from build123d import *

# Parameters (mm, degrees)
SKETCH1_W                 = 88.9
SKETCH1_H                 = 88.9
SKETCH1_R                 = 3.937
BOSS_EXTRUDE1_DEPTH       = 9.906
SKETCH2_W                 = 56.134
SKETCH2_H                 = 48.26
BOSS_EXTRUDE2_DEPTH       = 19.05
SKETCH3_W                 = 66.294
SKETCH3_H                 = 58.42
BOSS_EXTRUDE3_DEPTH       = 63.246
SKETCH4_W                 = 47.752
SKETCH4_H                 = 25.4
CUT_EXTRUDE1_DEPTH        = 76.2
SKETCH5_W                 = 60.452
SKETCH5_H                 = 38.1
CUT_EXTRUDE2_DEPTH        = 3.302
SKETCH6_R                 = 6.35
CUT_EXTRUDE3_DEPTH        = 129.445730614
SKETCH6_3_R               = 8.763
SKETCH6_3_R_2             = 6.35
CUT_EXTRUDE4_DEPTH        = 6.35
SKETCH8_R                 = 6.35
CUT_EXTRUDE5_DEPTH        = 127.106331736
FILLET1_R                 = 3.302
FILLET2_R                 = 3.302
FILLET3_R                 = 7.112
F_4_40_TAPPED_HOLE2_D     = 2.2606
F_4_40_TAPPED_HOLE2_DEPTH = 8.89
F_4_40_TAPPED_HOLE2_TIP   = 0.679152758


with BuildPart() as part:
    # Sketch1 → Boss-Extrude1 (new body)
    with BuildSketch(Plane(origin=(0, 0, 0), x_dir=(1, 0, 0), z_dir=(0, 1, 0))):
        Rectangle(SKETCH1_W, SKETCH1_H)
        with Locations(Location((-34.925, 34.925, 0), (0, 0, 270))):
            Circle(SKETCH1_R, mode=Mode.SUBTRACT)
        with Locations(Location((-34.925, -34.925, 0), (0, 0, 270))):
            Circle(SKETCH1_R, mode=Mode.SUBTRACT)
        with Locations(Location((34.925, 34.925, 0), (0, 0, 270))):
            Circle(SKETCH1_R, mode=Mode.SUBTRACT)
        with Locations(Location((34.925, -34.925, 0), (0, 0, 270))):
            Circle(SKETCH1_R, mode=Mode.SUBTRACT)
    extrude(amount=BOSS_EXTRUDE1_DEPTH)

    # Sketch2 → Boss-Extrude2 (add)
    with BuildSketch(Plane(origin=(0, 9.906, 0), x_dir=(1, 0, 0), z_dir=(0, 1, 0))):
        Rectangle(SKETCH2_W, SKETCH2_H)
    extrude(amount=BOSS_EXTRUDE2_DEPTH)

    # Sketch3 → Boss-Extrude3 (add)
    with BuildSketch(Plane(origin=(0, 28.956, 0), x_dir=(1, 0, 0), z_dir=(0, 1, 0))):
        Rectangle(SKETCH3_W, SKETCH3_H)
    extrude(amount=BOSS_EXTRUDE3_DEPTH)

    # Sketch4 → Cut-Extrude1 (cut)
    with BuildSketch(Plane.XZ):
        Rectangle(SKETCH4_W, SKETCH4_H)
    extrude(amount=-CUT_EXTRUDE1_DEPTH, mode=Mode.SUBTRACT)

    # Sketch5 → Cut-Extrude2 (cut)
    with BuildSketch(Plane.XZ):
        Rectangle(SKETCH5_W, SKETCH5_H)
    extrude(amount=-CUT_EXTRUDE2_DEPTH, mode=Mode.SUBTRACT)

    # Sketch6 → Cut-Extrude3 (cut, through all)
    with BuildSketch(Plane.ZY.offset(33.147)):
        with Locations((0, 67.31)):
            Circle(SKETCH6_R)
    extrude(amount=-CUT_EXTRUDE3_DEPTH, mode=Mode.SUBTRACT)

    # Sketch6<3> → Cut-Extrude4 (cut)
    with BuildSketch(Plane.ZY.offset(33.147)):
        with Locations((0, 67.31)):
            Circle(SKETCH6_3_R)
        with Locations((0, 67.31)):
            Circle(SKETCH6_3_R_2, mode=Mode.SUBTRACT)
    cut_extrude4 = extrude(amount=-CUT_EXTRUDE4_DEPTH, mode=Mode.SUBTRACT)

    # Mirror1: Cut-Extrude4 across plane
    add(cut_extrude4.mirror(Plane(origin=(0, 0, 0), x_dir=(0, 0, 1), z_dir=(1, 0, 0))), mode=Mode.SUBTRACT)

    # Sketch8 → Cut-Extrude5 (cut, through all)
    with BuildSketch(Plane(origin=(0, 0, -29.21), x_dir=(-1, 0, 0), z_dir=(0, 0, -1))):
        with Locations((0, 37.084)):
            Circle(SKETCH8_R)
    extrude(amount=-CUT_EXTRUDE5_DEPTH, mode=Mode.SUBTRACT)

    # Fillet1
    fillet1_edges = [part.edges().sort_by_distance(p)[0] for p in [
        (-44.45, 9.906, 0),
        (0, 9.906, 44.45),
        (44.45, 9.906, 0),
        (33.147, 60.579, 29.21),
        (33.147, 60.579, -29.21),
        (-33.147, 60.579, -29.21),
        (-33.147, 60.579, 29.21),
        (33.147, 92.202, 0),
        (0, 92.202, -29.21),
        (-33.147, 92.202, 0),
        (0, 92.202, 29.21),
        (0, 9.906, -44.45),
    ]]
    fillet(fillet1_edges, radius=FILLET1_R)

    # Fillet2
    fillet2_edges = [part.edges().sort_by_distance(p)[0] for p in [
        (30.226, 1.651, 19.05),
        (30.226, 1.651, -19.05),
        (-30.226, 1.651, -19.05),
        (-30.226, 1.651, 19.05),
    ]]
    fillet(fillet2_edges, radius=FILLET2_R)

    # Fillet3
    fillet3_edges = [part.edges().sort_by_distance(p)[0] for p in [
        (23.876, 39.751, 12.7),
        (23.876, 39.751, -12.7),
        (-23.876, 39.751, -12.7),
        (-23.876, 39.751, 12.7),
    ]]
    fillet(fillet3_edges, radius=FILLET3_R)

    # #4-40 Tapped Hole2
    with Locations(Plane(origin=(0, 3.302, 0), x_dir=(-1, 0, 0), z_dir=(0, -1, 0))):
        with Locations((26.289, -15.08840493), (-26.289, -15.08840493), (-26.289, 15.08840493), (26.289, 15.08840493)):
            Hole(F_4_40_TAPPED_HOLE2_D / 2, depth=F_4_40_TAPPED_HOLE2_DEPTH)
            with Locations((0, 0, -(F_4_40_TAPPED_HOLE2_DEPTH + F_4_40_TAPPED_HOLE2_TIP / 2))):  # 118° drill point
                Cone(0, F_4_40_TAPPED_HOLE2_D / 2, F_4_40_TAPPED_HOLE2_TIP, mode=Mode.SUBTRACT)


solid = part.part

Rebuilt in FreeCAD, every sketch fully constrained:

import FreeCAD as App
import Part
import Sketcher
Q = App.Units.Quantity


def edges_at(feature, points):
    """Names of the edges that pass closest to the given points."""
    edges = feature.Shape.Edges
    near = lambda p: min(range(len(edges)), key=lambda i: edges[i].distToShape(Part.Vertex(*p))[0])
    return sorted({f"Edge{near(p) + 1}" for p in points})


def add_polygon(sketch, points):
    """Adds a closed chain of lines whose ends are joined by coincident constraints."""
    first, n = sketch.GeometryCount, len(points)
    for a, b in zip(points, points[1:] + points[:1]):
        sketch.addGeometry(Part.LineSegment(App.Vector(*a, 0), App.Vector(*b, 0)), False)
    for i in range(n):
        sketch.addConstraint(Sketcher.Constraint("Coincident", first + i, 2, first + (i + 1) % n, 1))

doc = App.newDocument("Part")
params = doc.addObject("Spreadsheet::Sheet", "Params")
for row, (alias, value) in enumerate([
    ("sketch1_diameter", "0.31 in"),
    ("sketch1_width", "3.5 in"),
    ("pad1_length", "0.39 in"),
    ("sketch2_height", "1.9 in"),
    ("sketch2_width", "2.21 in"),
    ("pad2_length", "0.75 in"),
    ("sketch3_height", "2.3 in"),
    ("sketch3_width", "2.61 in"),
    ("pad3_length", "2.49 in"),
    ("sketch4_height", "1 in"),
    ("sketch4_width", "1.88 in"),
    ("pocket1_length", "3 in"),
    ("sketch5_height", "1.5 in"),
    ("sketch5_width", "2.38 in"),
    ("pocket2_length", "0.13 in"),
    ("sketch6_diameter", "0.5 in"),
    ("sketch7_diameter", "0.5 in"),
    ("sketch7_diameter2", "0.69 in"),
    ("pocket4_length", "0.25 in"),
    ("sketch8_diameter", "0.5 in"),
    ("fillet_radius", "0.13 in"),
    ("fillet2_radius", "0.13 in"),
    ("fillet3_radius", "0.28 in"),
    ("sketch9_diameter", "0.089 in"),
    ("hole_diameter", "0.089 in"),
    ("hole_depth", "0.35 in"),
], start=1):
    params.set(f"A{row}", alias)
    params.set(f"B{row}", "=" + value)
    params.setAlias(f"B{row}", alias)

body = doc.addObject("PartDesign::Body", "Body")

# Sketch on XZ plane
sketch1 = body.newObject("Sketcher::SketchObject", "Sketch")
sketch1.AttachmentSupport = (doc.getObject("XZ_Plane"), [""])
sketch1.MapMode = "FlatFace"
add_polygon(sketch1, [(-44.5, -44.5), (-44.5, 44.5), (44.5, 44.5), (44.5, -44.5)])  # lines 0-3
sketch1.addGeometry(Part.Circle(App.Vector(-34.9, 34.9, 0), App.Vector(0, 0, 1), 3.9), False)  # 4
sketch1.addGeometry(Part.Circle(App.Vector(34.9, 34.9, 0), App.Vector(0, 0, 1), 3.9), False)  # 5
sketch1.addGeometry(Part.Circle(App.Vector(-34.9, -34.9, 0), App.Vector(0, 0, 1), 3.9), False)  # 6
sketch1.addGeometry(Part.Circle(App.Vector(34.9, -34.9, 0), App.Vector(0, 0, 1), 3.9), False)  # 7
sketch1.addConstraint([
    Sketcher.Constraint("Vertical", 0),
    Sketcher.Constraint("Horizontal", 1),
    Sketcher.Constraint("Vertical", 2),
    Sketcher.Constraint("Horizontal", 3),
    Sketcher.Constraint("Equal", 4, 5),
    Sketcher.Constraint("Equal", 5, 6),
    Sketcher.Constraint("Equal", 6, 7),
    Sketcher.Constraint("Symmetric", 5, 3, 6, 3, -1, 1),
    Sketcher.Constraint("Symmetric", 4, 3, 7, 3, -1, 1),
    Sketcher.Constraint("Symmetric", 0, 2, 2, 2, -1, 1),
    Sketcher.Constraint("Symmetric", 4, 3, 5, 3, -2),
    Sketcher.Constraint("Equal", 3, 0),
    Sketcher.Constraint("Diameter", 4, Q("0.31 in")),
    Sketcher.Constraint("DistanceX", 1, 1, 1, 2, Q("3.5 in")),
    Sketcher.Constraint("DistanceX", 4, 3, 5, 3, Q("2.75 in")),
    Sketcher.Constraint("DistanceY", 6, 3, 4, 3, Q("2.75 in")),
])
sketch1.setExpression("Constraints[16]", "Params.sketch1_diameter")
sketch1.setExpression("Constraints[17]", "Params.sketch1_width")
pad1 = body.newObject("PartDesign::Pad", "Pad")
pad1.Profile = sketch1
pad1.setExpression("Length", "Params.pad1_length")
pad1.Reversed = True

# Sketch on XZ plane
sketch2 = body.newObject("Sketcher::SketchObject", "Sketch001")
sketch2.AttachmentSupport = (doc.getObject("XZ_Plane"), [""])
sketch2.MapMode = "FlatFace"
sketch2.AttachmentOffset = App.Placement(App.Vector(0, 0, -0.39 * 25.4), App.Rotation())
add_polygon(sketch2, [(-28, -24), (-28, 24), (28, 24), (28, -24)])  # lines 0-3
sketch2.addConstraint([
    Sketcher.Constraint("Vertical", 0),
    Sketcher.Constraint("Horizontal", 1),
    Sketcher.Constraint("Vertical", 2),
    Sketcher.Constraint("Horizontal", 3),
    Sketcher.Constraint("Symmetric", 0, 2, 2, 2, -1, 1),
    Sketcher.Constraint("DistanceY", 0, 1, 0, 2, Q("1.9 in")),
    Sketcher.Constraint("DistanceX", 1, 1, 1, 2, Q("2.21 in")),
])
sketch2.setExpression("Constraints[9]", "Params.sketch2_height")
sketch2.setExpression("Constraints[10]", "Params.sketch2_width")
pad2 = body.newObject("PartDesign::Pad", "Pad001")
pad2.Profile = sketch2
pad2.setExpression("Length", "Params.pad2_length")
pad2.Reversed = True

# Sketch on XZ plane
sketch3 = body.newObject("Sketcher::SketchObject", "Sketch002")
sketch3.AttachmentSupport = (doc.getObject("XZ_Plane"), [""])
sketch3.MapMode = "FlatFace"
sketch3.AttachmentOffset = App.Placement(App.Vector(0, 0, -1.14 * 25.4), App.Rotation())
add_polygon(sketch3, [(-33, -29), (-33, 29), (33, 29), (33, -29)])  # lines 0-3
sketch3.addConstraint([
    Sketcher.Constraint("Vertical", 0),
    Sketcher.Constraint("Horizontal", 1),
    Sketcher.Constraint("Vertical", 2),
    Sketcher.Constraint("Horizontal", 3),
    Sketcher.Constraint("Symmetric", 0, 2, 2, 2, -1, 1),
    Sketcher.Constraint("DistanceY", 0, 1, 0, 2, Q("2.3 in")),
    Sketcher.Constraint("DistanceX", 1, 1, 1, 2, Q("2.61 in")),
])
sketch3.setExpression("Constraints[9]", "Params.sketch3_height")
sketch3.setExpression("Constraints[10]", "Params.sketch3_width")
pad3 = body.newObject("PartDesign::Pad", "Pad002")
pad3.Profile = sketch3
pad3.setExpression("Length", "Params.pad3_length")
pad3.Reversed = True

# Sketch on XZ plane
sketch4 = body.newObject("Sketcher::SketchObject", "Sketch003")
sketch4.AttachmentSupport = (doc.getObject("XZ_Plane"), [""])
sketch4.MapMode = "FlatFace"
add_polygon(sketch4, [(-24, 13), (-24, -13), (24, -13), (24, 13)])  # lines 0-3
sketch4.addConstraint([
    Sketcher.Constraint("Vertical", 0),
    Sketcher.Constraint("Horizontal", 1),
    Sketcher.Constraint("Vertical", 2),
    Sketcher.Constraint("Horizontal", 3),
    Sketcher.Constraint("Symmetric", 0, 2, 2, 2, -1, 1),
    Sketcher.Constraint("DistanceY", 0, 2, 0, 1, Q("1 in")),
    Sketcher.Constraint("DistanceX", 1, 1, 1, 2, Q("1.88 in")),
])
sketch4.setExpression("Constraints[9]", "Params.sketch4_height")
sketch4.setExpression("Constraints[10]", "Params.sketch4_width")
pocket1 = body.newObject("PartDesign::Pocket", "Pocket")
pocket1.Profile = sketch4
pocket1.setExpression("Length", "Params.pocket1_length")

# Sketch on XZ plane
sketch5 = body.newObject("Sketcher::SketchObject", "Sketch004")
sketch5.AttachmentSupport = (doc.getObject("XZ_Plane"), [""])
sketch5.MapMode = "FlatFace"
add_polygon(sketch5, [(-30, 19), (-30, -19), (30, -19), (30, 19)])  # lines 0-3
sketch5.addConstraint([
    Sketcher.Constraint("Vertical", 0),
    Sketcher.Constraint("Horizontal", 1),
    Sketcher.Constraint("Vertical", 2),
    Sketcher.Constraint("Horizontal", 3),
    Sketcher.Constraint("Symmetric", 0, 2, 2, 2, -1, 1),
    Sketcher.Constraint("DistanceY", 0, 2, 0, 1, Q("1.5 in")),
    Sketcher.Constraint("DistanceX", 1, 1, 1, 2, Q("2.38 in")),
])
sketch5.setExpression("Constraints[9]", "Params.sketch5_height")
sketch5.setExpression("Constraints[10]", "Params.sketch5_width")
pocket2 = body.newObject("PartDesign::Pocket", "Pocket001")
pocket2.Profile = sketch5
pocket2.setExpression("Length", "Params.pocket2_length")

# Sketch on YZ plane
sketch6 = body.newObject("Sketcher::SketchObject", "Sketch005")
sketch6.AttachmentSupport = (doc.getObject("YZ_Plane"), [""])
sketch6.MapMode = "FlatFace"
sketch6.AttachmentOffset = App.Placement(App.Vector(0, 0, -1.305 * 25.4), App.Rotation())
sketch6.addGeometry(Part.Circle(App.Vector(67, 0, 0), App.Vector(0, 0, 1), 6), False)
sketch6.addConstraint([
    Sketcher.Constraint("PointOnObject", 0, 3, -1),
    Sketcher.Constraint("Diameter", 0, Q("0.5 in")),
    Sketcher.Constraint("DistanceX", -1, 1, 0, 3, Q("2.65 in")),
])
sketch6.setExpression("Constraints[1]", "Params.sketch6_diameter")
pocket3 = body.newObject("PartDesign::Pocket", "Pocket002")
pocket3.Profile = sketch6
pocket3.Type = "ThroughAll"
pocket3.Reversed = True

# Sketch on YZ plane
sketch7 = body.newObject("Sketcher::SketchObject", "Sketch006")
sketch7.AttachmentSupport = (doc.getObject("YZ_Plane"), [""])
sketch7.MapMode = "FlatFace"
sketch7.AttachmentOffset = App.Placement(App.Vector(0, 0, -1.305 * 25.4), App.Rotation())
sketch7.addGeometry([
    Part.Circle(App.Vector(67, 0, 0), App.Vector(0, 0, 1), 9),
    Part.Circle(App.Vector(67, 0, 0), App.Vector(0, 0, 1), 6),
], False)
sketch7.addConstraint([
    Sketcher.Constraint("Coincident", 1, 3, 0, 3),
    Sketcher.Constraint("PointOnObject", 0, 3, -1),
    Sketcher.Constraint("Diameter", 1, Q("0.5 in")),
    Sketcher.Constraint("Diameter", 0, Q("0.69 in")),
    Sketcher.Constraint("DistanceX", -1, 1, 0, 3, Q("2.65 in")),
])
sketch7.setExpression("Constraints[2]", "Params.sketch7_diameter")
sketch7.setExpression("Constraints[3]", "Params.sketch7_diameter2")
pocket4 = body.newObject("PartDesign::Pocket", "Pocket003")
pocket4.Profile = sketch7
pocket4.setExpression("Length", "Params.pocket4_length")
pocket4.Reversed = True
doc.recompute()

mirrored = body.newObject("PartDesign::Mirrored", "Mirrored")
mirrored.Originals = [pocket4]
mirrored.MirrorPlane = (doc.getObject("YZ_Plane"), [""])
body.Tip = mirrored

# Sketch on XY plane
sketch8 = body.newObject("Sketcher::SketchObject", "Sketch007")
sketch8.AttachmentSupport = (doc.getObject("XY_Plane"), [""])
sketch8.MapMode = "FlatFace"
sketch8.AttachmentOffset = App.Placement(App.Vector(0, 0, -1.15 * 25.4), App.Rotation())
sketch8.addGeometry(Part.Circle(App.Vector(0, 37, 0), App.Vector(0, 0, 1), 6), False)
sketch8.addConstraint([
    Sketcher.Constraint("PointOnObject", 0, 3, -2),
    Sketcher.Constraint("Diameter", 0, Q("0.5 in")),
    Sketcher.Constraint("DistanceY", -1, 1, 0, 3, Q("1.46 in")),
])
sketch8.setExpression("Constraints[1]", "Params.sketch8_diameter")
pocket5 = body.newObject("PartDesign::Pocket", "Pocket004")
pocket5.Profile = sketch8
pocket5.Type = "ThroughAll"
pocket5.Reversed = True
doc.recompute()

fillet = body.newObject("PartDesign::Fillet", "Fillet")
fillet.Base = (pocket5, edges_at(pocket5, [
    (-44.45, 9.906, 0),
    (0, 9.906, 44.45),
    (44.45, 9.906, 0),
    (33.147, 60.579, 29.21),
    (33.147, 60.579, -29.21),
    (-33.147, 60.579, -29.21),
    (-33.147, 60.579, 29.21),
    (33.147, 92.202, 0),
    (0, 92.202, -29.21),
    (-33.147, 92.202, 0),
    (0, 92.202, 29.21),
    (0, 9.906, -44.45),
]))
fillet.setExpression("Radius", "Params.fillet_radius")
doc.recompute()

fillet2 = body.newObject("PartDesign::Fillet", "Fillet001")
fillet2.Base = (fillet, edges_at(fillet, [
    (30.226, 1.651, 19.05),
    (30.226, 1.651, -19.05),
    (-30.226, 1.651, -19.05),
    (-30.226, 1.651, 19.05),
]))
fillet2.setExpression("Radius", "Params.fillet2_radius")
doc.recompute()

fillet3 = body.newObject("PartDesign::Fillet", "Fillet002")
fillet3.Base = (fillet2, edges_at(fillet2, [
    (23.876, 39.751, 12.7),
    (23.876, 39.751, -12.7),
    (-23.876, 39.751, -12.7),
    (-23.876, 39.751, 12.7),
]))
fillet3.setExpression("Radius", "Params.fillet3_radius")

# Sketch on XZ plane
sketch9 = body.newObject("Sketcher::SketchObject", "Sketch008")
sketch9.AttachmentSupport = (doc.getObject("XZ_Plane"), [""])
sketch9.MapMode = "FlatFace"
sketch9.AttachmentOffset = App.Placement(App.Vector(0, 0, -0.13 * 25.4), App.Rotation())
sketch9.addGeometry([
    Part.Circle(App.Vector(-26.3, 15.1, 0), App.Vector(0, 0, 1), 1.1),
    Part.Circle(App.Vector(26.3, 15.1, 0), App.Vector(0, 0, 1), 1.1),
    Part.Circle(App.Vector(26.3, -15.1, 0), App.Vector(0, 0, 1), 1.1),
    Part.Circle(App.Vector(-26.3, -15.1, 0), App.Vector(0, 0, 1), 1.1),
], False)
sketch9.addConstraint([
    Sketcher.Constraint("Equal", 0, 1),
    Sketcher.Constraint("Equal", 1, 2),
    Sketcher.Constraint("Equal", 2, 3),
    Sketcher.Constraint("Symmetric", 0, 3, 2, 3, -1, 1),
    Sketcher.Constraint("Symmetric", 1, 3, 3, 3, -1, 1),
    Sketcher.Constraint("Symmetric", 0, 3, 1, 3, -2),
    Sketcher.Constraint("Diameter", 0, Q("0.089 in")),
    Sketcher.Constraint("DistanceX", 0, 3, 1, 3, Q("2.07 in")),
    Sketcher.Constraint("DistanceY", 2, 3, 1, 3, Q("30.17681 mm")),
])
sketch9.setExpression("Constraints[6]", "Params.sketch9_diameter")
doc.recompute()
hole = body.newObject("PartDesign::Hole", "Hole")
hole.Profile = sketch9
hole.ThreadType = "None"
hole.setExpression("Diameter", "Params.hole_diameter")
hole.DepthType = "Dimension"
hole.setExpression("Depth", "Params.hole_depth")
hole.DrillPoint = "Angled"
hole.DrillPointAngle = 118

doc.recompute()
